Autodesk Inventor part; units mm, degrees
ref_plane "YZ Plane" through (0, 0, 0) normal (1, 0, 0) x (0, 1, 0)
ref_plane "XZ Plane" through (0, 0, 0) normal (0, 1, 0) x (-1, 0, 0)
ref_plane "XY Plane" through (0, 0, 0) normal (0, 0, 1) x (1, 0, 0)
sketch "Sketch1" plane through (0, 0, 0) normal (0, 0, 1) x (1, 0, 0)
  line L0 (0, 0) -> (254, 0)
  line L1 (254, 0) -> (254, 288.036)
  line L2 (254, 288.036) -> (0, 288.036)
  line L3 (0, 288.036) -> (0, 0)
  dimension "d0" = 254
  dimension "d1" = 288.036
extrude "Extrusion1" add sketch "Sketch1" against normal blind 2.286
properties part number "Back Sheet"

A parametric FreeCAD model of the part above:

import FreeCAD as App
import Part
import Sketcher
from FreeCAD import Vector
Q = App.Units.Quantity


def add_polygon(sketch, points):
    """Adds a closed chain of lines whose ends are joined by coincident constraints."""
    first, n = sketch.GeometryCount, len(points)
    for a, b in zip(points, points[1:] + points[:1]):
        sketch.addGeometry(Part.LineSegment(App.Vector(*a, 0), App.Vector(*b, 0)), False)
    for i in range(n):
        sketch.addConstraint(Sketcher.Constraint("Coincident", first + i, 2, first + (i + 1) % n, 1))

doc = App.newDocument("Part")
body = doc.addObject("PartDesign::Body", "Body")

sketch1 = body.newObject("Sketcher::SketchObject", "Sketch")
sketch1.AttachmentSupport = (doc.getObject("XY_Plane"), [""])
sketch1.MapMode = "FlatFace"
add_polygon(sketch1, [(0, 288.036), (0, 0), (254, 0), (254, 288.036)])
sketch1.addConstraint([
    Sketcher.Constraint("Vertical", 0),
    Sketcher.Constraint("Horizontal", 1),
    Sketcher.Constraint("Vertical", 2),
    Sketcher.Constraint("Horizontal", 3),
    Sketcher.Constraint("Coincident", 0, 2, -1, 1),
    Sketcher.Constraint("DistanceX", 1, 1, 1, 2, Q("10 in")),
    Sketcher.Constraint("DistanceY", 0, 2, 0, 1, Q("11.34 in")),
])
pad1 = body.newObject("PartDesign::Pad", "Pad")
pad1.Profile = sketch1
pad1.Length = Q("0.09 in")
pad1.Reversed = True

doc.recompute()
